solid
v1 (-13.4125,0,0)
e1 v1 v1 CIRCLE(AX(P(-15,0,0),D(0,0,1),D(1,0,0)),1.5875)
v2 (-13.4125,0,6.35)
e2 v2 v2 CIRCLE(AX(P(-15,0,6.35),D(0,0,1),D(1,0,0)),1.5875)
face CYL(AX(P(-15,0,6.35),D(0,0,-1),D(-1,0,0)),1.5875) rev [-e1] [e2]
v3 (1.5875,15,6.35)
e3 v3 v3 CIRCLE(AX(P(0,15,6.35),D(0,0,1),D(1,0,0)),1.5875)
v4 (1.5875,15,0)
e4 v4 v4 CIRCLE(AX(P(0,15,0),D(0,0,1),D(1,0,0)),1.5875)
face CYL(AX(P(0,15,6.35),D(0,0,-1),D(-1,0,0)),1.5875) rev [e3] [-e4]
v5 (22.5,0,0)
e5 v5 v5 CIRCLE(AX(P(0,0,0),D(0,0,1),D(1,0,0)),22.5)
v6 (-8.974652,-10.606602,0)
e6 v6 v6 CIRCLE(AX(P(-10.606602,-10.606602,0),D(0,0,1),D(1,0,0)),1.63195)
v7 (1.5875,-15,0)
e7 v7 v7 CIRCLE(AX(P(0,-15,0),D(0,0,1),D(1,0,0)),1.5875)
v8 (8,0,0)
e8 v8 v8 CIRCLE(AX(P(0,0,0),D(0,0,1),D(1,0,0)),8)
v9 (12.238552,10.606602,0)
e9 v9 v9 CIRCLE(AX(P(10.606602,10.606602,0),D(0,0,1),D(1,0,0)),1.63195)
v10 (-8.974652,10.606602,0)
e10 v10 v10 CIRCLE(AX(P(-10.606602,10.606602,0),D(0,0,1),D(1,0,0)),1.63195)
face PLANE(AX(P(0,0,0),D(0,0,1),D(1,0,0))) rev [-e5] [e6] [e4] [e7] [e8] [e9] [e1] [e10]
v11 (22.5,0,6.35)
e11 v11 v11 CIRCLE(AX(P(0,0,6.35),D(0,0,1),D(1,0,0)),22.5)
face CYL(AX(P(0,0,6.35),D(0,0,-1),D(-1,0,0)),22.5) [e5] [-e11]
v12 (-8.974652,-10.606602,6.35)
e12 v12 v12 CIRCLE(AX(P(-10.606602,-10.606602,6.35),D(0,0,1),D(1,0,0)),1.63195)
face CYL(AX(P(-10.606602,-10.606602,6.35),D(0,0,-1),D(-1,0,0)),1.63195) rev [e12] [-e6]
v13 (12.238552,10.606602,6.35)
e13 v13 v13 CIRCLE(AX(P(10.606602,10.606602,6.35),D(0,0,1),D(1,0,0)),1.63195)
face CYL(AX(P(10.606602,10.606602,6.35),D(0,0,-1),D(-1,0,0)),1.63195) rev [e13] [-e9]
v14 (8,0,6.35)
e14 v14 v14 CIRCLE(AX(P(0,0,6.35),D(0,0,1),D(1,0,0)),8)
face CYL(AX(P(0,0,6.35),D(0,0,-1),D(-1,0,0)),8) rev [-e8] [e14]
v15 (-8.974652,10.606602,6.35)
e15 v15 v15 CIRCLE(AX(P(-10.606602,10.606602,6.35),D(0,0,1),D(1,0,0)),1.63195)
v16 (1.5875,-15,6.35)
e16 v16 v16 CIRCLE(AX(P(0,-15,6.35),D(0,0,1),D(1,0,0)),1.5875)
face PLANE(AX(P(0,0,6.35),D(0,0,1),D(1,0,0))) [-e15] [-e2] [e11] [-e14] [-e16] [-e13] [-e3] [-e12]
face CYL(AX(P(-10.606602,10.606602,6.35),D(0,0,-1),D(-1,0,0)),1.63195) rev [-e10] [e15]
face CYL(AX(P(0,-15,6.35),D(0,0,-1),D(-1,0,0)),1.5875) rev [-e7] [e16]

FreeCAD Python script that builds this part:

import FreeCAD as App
import Part
import Sketcher
from FreeCAD import Vector
Q = App.Units.Quantity

doc = App.newDocument("Part")
body = doc.addObject("PartDesign::Body", "Body")

# Sketch on XY plane
sketch1 = doc.addObject("Sketcher::SketchObject", "Sketch")
body.addObject(sketch1)
sketch1.AttachmentSupport = (doc.XY_Plane, [""])
sketch1.MapMode = "FlatFace"
sketch1.addGeometry(Part.Circle(Vector(0, 0, 0), Vector(0, 0, 1), 22.5), False)
sketch1.addGeometry(Part.Circle(Vector(-10.606602, -10.606602, 0), Vector(0, 0, 1), 1.63195), False)
sketch1.addGeometry(Part.Circle(Vector(0, -15, 0), Vector(0, 0, 1), 1.5875), False)
sketch1.addGeometry(Part.Circle(Vector(-15, 0, 0), Vector(0, 0, 1), 1.5875), False)
sketch1.addGeometry(Part.Circle(Vector(-10.606602, 10.606602, 0), Vector(0, 0, 1), 1.63195), False)
sketch1.addGeometry(Part.Circle(Vector(0, 0, 0), Vector(0, 0, 1), 8), False)
sketch1.addGeometry(Part.Circle(Vector(0, 15, 0), Vector(0, 0, 1), 1.5875), False)
sketch1.addGeometry(Part.Circle(Vector(10.606602, 10.606602, 0), Vector(0, 0, 1), 1.63195), False)
sketch1.addConstraint(Sketcher.Constraint("Coincident", 0, 3, -1, 1))
sketch1.addConstraint(Sketcher.Constraint("Coincident", 5, 3, -1, 1))
sketch1.addConstraint(Sketcher.Constraint("Equal", 2, 3))
sketch1.addConstraint(Sketcher.Constraint("Equal", 1, 4))
sketch1.addConstraint(Sketcher.Constraint("Equal", 3, 6))
sketch1.addConstraint(Sketcher.Constraint("Equal", 4, 7))
sketch1.addConstraint(Sketcher.Constraint("Symmetric", 2, 3, 6, 3, -1, 1))
sketch1.addConstraint(Sketcher.Constraint("Symmetric", 1, 3, 7, 3, -1, 1))
sketch1.addConstraint(Sketcher.Constraint("Symmetric", 4, 3, 7, 3, -2))
sketch1.addConstraint(Sketcher.Constraint("PointOnObject", 2, 3, -2))
sketch1.addConstraint(Sketcher.Constraint("PointOnObject", 3, 3, -1))
sketch1.addConstraint(Sketcher.Constraint("Diameter", 0, Q("45 mm")))
sketch1.addConstraint(Sketcher.Constraint("Diameter", 5, Q("16 mm")))
sketch1.addConstraint(Sketcher.Constraint("Diameter", 2, Q("3.175 mm")))
sketch1.addConstraint(Sketcher.Constraint("DistanceY", 2, 3, -1, 1, Q("15 mm")))
sketch1.addConstraint(Sketcher.Constraint("DistanceX", 3, 3, -1, 1, Q("15 mm")))
sketch1.addConstraint(Sketcher.Constraint("Diameter", 1, Q("3.2639 mm")))
sketch1.addConstraint(Sketcher.Constraint("DistanceX", 1, 3, -1, 1, Q("10.606602 mm")))
sketch1.addConstraint(Sketcher.Constraint("DistanceY", 1, 3, -1, 1, Q("10.606602 mm")))
pad1 = doc.addObject("PartDesign::Pad", "Pad")
body.addObject(pad1)
pad1.Profile = sketch1
pad1.Length = 6.35

doc.recompute()
